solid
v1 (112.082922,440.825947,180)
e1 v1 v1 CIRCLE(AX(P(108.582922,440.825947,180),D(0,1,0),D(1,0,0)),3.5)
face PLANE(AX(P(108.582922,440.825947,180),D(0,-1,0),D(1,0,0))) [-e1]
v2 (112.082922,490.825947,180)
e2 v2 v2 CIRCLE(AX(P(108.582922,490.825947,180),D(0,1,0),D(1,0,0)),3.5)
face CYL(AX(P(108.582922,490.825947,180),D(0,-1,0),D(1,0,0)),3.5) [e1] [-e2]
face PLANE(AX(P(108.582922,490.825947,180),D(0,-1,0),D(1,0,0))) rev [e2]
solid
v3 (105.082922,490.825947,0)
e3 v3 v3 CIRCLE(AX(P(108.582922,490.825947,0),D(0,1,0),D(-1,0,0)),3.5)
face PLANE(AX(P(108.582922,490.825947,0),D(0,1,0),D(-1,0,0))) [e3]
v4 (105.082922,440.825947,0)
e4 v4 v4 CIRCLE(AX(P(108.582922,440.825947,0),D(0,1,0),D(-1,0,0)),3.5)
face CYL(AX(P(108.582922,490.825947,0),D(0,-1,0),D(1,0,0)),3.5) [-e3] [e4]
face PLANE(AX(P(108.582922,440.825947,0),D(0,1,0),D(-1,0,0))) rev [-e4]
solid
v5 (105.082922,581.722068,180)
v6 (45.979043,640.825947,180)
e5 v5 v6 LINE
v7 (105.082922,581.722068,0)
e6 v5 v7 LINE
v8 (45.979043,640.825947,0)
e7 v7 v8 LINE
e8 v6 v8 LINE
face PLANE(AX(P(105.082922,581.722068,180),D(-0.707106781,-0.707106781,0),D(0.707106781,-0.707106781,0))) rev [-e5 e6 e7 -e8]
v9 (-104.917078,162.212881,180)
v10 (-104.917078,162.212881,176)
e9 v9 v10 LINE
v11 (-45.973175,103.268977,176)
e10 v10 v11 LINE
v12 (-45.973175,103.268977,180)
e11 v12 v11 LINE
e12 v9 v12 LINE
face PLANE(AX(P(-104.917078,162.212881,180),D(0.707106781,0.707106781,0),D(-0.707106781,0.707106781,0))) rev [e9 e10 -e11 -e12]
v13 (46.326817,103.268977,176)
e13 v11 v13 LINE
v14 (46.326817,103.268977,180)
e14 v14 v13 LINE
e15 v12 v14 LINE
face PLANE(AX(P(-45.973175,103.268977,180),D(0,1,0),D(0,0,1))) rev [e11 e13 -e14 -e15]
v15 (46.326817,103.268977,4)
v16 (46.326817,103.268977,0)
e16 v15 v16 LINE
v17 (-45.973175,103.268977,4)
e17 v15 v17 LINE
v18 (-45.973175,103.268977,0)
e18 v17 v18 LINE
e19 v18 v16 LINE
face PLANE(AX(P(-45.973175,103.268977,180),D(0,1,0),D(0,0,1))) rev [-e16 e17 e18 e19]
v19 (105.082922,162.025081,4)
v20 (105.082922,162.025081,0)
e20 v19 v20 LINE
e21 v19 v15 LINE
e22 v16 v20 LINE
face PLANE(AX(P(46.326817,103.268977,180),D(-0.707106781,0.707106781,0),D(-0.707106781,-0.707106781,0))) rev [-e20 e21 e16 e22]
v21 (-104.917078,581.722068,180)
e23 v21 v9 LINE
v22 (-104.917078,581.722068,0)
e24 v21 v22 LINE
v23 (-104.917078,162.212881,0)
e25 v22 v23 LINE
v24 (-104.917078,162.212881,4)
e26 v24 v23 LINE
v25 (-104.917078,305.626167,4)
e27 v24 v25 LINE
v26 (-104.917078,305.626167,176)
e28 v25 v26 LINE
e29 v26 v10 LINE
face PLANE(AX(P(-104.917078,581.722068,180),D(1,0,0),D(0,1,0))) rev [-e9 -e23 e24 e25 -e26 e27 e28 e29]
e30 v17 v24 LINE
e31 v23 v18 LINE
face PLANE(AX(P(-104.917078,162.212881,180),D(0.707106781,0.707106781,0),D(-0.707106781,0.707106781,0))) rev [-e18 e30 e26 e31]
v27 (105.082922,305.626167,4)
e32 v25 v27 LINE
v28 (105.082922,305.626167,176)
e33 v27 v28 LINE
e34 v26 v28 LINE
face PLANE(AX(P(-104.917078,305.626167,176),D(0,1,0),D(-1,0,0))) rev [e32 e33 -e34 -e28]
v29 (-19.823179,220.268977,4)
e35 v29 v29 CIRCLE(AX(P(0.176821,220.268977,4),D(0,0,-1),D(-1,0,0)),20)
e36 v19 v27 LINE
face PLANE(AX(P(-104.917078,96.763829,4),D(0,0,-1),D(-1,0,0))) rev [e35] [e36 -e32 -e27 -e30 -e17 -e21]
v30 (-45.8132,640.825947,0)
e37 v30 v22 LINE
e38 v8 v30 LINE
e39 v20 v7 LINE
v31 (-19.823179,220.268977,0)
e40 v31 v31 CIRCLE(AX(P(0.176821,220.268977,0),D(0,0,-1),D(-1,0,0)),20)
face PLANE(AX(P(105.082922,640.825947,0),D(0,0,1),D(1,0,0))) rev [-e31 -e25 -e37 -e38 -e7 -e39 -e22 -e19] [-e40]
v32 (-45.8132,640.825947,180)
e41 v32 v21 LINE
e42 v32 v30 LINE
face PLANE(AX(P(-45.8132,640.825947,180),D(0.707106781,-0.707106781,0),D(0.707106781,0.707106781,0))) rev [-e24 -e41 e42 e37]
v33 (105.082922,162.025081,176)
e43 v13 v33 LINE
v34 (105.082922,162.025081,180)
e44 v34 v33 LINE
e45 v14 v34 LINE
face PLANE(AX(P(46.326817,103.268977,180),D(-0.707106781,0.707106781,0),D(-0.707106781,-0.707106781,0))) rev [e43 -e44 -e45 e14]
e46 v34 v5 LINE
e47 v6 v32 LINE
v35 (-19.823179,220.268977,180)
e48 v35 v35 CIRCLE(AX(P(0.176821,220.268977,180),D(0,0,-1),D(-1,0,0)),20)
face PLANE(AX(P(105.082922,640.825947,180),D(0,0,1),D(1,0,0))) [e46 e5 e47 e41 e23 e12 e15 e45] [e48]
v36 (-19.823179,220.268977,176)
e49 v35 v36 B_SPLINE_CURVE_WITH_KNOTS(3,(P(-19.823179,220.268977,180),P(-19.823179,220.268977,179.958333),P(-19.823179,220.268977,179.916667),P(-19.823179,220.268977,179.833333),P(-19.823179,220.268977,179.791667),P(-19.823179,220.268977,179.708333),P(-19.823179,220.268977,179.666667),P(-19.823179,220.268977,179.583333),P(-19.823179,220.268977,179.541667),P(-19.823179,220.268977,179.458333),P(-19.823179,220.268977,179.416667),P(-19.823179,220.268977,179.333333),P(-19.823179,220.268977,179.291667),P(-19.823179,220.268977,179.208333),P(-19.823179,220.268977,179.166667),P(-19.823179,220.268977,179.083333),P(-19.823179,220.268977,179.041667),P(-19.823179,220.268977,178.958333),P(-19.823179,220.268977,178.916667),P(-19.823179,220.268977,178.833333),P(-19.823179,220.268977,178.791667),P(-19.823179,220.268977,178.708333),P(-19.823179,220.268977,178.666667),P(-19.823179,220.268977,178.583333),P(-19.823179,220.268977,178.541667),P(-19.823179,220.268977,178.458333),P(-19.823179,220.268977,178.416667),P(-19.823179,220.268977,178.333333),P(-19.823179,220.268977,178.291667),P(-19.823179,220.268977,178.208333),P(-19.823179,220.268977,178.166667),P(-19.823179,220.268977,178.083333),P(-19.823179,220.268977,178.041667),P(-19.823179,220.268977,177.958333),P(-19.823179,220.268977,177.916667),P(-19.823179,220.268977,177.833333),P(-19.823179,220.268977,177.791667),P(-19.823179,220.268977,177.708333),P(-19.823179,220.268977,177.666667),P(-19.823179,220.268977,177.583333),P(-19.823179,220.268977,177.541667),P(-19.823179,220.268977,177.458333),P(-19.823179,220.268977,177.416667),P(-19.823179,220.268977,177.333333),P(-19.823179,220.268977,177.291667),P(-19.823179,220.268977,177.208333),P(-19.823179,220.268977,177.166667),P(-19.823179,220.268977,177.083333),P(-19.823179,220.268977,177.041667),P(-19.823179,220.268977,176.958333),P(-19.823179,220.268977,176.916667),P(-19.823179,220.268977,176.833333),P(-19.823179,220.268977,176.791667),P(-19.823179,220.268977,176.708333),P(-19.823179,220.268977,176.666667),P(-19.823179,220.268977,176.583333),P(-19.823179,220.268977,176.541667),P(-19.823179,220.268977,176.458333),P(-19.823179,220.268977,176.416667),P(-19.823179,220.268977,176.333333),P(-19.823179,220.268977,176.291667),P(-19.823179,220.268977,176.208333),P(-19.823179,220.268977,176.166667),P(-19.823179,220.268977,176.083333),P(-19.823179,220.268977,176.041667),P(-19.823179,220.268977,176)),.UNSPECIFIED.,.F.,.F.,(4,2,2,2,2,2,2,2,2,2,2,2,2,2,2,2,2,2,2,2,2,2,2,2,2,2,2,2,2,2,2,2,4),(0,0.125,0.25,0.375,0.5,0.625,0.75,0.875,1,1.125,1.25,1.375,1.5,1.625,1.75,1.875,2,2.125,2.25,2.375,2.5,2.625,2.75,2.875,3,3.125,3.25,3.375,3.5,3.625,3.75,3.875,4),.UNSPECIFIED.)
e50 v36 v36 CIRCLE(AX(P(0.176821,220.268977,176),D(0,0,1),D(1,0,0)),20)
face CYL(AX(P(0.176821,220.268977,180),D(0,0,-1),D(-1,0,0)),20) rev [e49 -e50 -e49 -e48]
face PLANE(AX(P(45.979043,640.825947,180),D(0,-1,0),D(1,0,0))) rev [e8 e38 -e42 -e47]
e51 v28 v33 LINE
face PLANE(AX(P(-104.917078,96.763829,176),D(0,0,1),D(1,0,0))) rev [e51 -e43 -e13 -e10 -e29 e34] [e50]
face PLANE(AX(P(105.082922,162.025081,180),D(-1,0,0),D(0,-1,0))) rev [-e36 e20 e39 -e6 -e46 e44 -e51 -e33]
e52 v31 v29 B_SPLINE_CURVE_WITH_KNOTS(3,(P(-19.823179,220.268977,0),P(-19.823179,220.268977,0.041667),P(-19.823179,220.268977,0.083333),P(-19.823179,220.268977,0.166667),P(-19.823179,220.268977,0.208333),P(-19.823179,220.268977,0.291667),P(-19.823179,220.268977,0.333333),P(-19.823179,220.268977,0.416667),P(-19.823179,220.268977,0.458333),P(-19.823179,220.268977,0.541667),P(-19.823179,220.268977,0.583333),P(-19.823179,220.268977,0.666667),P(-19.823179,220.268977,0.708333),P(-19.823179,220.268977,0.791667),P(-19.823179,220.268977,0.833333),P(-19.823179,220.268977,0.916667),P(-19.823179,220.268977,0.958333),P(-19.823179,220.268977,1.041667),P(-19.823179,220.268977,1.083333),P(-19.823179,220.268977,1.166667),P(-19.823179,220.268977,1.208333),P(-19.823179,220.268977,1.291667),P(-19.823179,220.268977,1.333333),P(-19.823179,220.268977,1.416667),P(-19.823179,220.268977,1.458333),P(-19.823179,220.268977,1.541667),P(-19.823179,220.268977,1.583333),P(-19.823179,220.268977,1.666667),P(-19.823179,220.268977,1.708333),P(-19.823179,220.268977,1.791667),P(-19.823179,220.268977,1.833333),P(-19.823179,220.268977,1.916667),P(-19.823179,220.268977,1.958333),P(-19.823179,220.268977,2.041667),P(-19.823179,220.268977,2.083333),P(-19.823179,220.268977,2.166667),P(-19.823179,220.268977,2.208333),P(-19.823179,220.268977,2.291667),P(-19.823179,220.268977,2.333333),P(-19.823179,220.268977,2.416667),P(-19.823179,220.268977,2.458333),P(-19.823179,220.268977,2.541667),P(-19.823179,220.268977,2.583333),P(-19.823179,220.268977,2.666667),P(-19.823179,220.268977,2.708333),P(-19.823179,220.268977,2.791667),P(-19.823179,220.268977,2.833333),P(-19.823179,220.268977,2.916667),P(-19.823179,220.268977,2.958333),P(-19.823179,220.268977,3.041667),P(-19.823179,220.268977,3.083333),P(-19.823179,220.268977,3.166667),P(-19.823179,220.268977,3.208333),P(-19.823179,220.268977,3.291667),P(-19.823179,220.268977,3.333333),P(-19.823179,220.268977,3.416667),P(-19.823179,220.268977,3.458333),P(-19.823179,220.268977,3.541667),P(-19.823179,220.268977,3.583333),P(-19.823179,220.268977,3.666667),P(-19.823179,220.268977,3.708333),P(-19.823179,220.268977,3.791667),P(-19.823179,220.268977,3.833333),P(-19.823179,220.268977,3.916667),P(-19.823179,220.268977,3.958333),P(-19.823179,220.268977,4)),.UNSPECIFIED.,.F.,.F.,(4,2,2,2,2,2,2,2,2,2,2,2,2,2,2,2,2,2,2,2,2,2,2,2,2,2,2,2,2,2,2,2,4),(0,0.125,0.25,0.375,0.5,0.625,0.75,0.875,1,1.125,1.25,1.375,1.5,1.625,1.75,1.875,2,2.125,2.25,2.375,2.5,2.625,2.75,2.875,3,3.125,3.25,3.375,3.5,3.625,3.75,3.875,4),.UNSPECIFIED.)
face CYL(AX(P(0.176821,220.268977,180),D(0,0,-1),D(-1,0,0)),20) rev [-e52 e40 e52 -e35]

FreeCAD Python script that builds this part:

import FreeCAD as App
import Part
import Sketcher
Q = App.Units.Quantity

doc = App.newDocument("Part")
body = doc.addObject("PartDesign::Body", "Body")

sketch1 = body.newObject("Sketcher::SketchObject", "Sketch")
sketch1.AttachmentSupport = (doc.getObject("XY_Plane"), [""])
sketch1.MapMode = "FlatFace"
sketch1.addGeometry([
    Part.LineSegment(App.Vector(105, 582, 0), App.Vector(46, 641, 0)),
    Part.LineSegment(App.Vector(46, 641, 0), App.Vector(-46, 641, 0)),
    Part.LineSegment(App.Vector(-46, 641, 0), App.Vector(-105, 582, 0)),
    Part.LineSegment(App.Vector(-105, 582, 0), App.Vector(-105, 162, 0)),
    Part.LineSegment(App.Vector(-105, 162, 0), App.Vector(-46, 103, 0)),
    Part.LineSegment(App.Vector(-46, 103, 0), App.Vector(46, 103, 0)),
    Part.LineSegment(App.Vector(46, 103, 0), App.Vector(105, 162, 0)),
    Part.LineSegment(App.Vector(105, 162, 0), App.Vector(105, 582, 0)),
], False)
sketch1.addConstraint([
    Sketcher.Constraint("Coincident", 0, 2, 1, 1),
    Sketcher.Constraint("Coincident", 1, 2, 2, 1),
    Sketcher.Constraint("Coincident", 2, 2, 3, 1),
    Sketcher.Constraint("Coincident", 3, 2, 4, 1),
    Sketcher.Constraint("Coincident", 4, 2, 5, 1),
    Sketcher.Constraint("Coincident", 5, 2, 6, 1),
    Sketcher.Constraint("Coincident", 6, 2, 7, 1),
    Sketcher.Constraint("Coincident", 7, 2, 0, 1),
    Sketcher.Constraint("Horizontal", 1),
    Sketcher.Constraint("Vertical", 3),
    Sketcher.Constraint("Horizontal", 5),
    Sketcher.Constraint("Vertical", 7),
    Sketcher.Constraint("Perpendicular", 0, 2),
    Sketcher.Constraint("Perpendicular", 2, 4),
    Sketcher.Constraint("Perpendicular", 4, 6),
    Sketcher.Constraint("Horizontal", 2, 2, 7, 2),
    Sketcher.Constraint("Equal", 0, 2),
    Sketcher.Constraint("DistanceX", 3, 2, 6, 2, Q("210 mm")),
    Sketcher.Constraint("DistanceX", 5, 1, 5, 2, Q("92.299992 mm")),
    Sketcher.Constraint("DistanceX", 1, 2, -1, 1, Q("45.8132 mm")),
    Sketcher.Constraint("DistanceY", 6, 2, 3, 2, Q("0.1878 mm")),
    Sketcher.Constraint("DistanceX", 1, 2, 1, 1, Q("91.792242 mm")),
    Sketcher.Constraint("DistanceY", 3, 2, 3, 1, Q("419.509188 mm")),
    Sketcher.Constraint("DistanceY", -1, 1, 2, 2, Q("581.722068 mm")),
])
pad1 = body.newObject("PartDesign::Pad", "Pad")
pad1.Profile = sketch1
pad1.Length = 180

sketch2 = body.newObject("Sketcher::SketchObject", "Sketch001")
sketch2.AttachmentSupport = (doc.getObject("YZ_Plane"), [""])
sketch2.MapMode = "FlatFace"
sketch2.AttachmentOffset = App.Placement(App.Vector(0, 0, 105.082922), App.Rotation())
sketch2.addGeometry([
    Part.LineSegment(App.Vector(306, 176, 0), App.Vector(97, 176, 0)),
    Part.LineSegment(App.Vector(97, 176, 0), App.Vector(97, 4, 0)),
    Part.LineSegment(App.Vector(97, 4, 0), App.Vector(306, 4, 0)),
    Part.LineSegment(App.Vector(306, 4, 0), App.Vector(306, 176, 0)),
], False)
sketch2.addConstraint([
    Sketcher.Constraint("Coincident", 0, 2, 1, 1),
    Sketcher.Constraint("Coincident", 1, 2, 2, 1),
    Sketcher.Constraint("Coincident", 2, 2, 3, 1),
    Sketcher.Constraint("Coincident", 3, 2, 0, 1),
    Sketcher.Constraint("Horizontal", 0),
    Sketcher.Constraint("Vertical", 1),
    Sketcher.Constraint("Horizontal", 2),
    Sketcher.Constraint("Vertical", 3),
    Sketcher.Constraint("DistanceY", 1, 2, 1, 1, Q("172 mm")),
    Sketcher.Constraint("DistanceY", -1, 1, 0, 2, Q("176 mm")),
    Sketcher.Constraint("DistanceX", 0, 2, 0, 1, Q("208.862338 mm")),
    Sketcher.Constraint("DistanceX", -1, 1, 0, 2, Q("96.763829 mm")),
])
pocket1 = body.newObject("PartDesign::Pocket", "Pocket")
pocket1.Profile = sketch2
pocket1.Type = "ThroughAll"

sketch3 = body.newObject("Sketcher::SketchObject", "Sketch002")
sketch3.AttachmentSupport = (doc.getObject("XY_Plane"), [""])
sketch3.MapMode = "FlatFace"
sketch3.addGeometry(Part.Circle(App.Vector(0, 220, 0), App.Vector(0, 0, 1), 20), False)
sketch3.addConstraint([
    Sketcher.Constraint("Diameter", 0, Q("40 mm")),
    Sketcher.Constraint("DistanceX", -1, 1, 0, 3, Q("0.176821 mm")),
    Sketcher.Constraint("DistanceY", -1, 1, 0, 3, Q("220.268977 mm")),
])
pocket2 = body.newObject("PartDesign::Pocket", "Pocket001")
pocket2.Profile = sketch3
pocket2.Type = "ThroughAll"
pocket2.Reversed = True
body2 = doc.addObject("PartDesign::Body", "Body001")

sketch4 = body2.newObject("Sketcher::SketchObject", "Sketch003")
sketch4.AttachmentSupport = (doc.getObject("XZ_Plane001"), [""])
sketch4.MapMode = "FlatFace"
sketch4.AttachmentOffset = App.Placement(App.Vector(0, 0, -440.825947), App.Rotation())
sketch4.addGeometry(Part.Circle(App.Vector(108.6, 0, 0), App.Vector(0, 0, 1), 3.5), False)
sketch4.addConstraint([
    Sketcher.Constraint("PointOnObject", 0, 3, -1),
    Sketcher.Constraint("Diameter", 0, Q("7 mm")),
    Sketcher.Constraint("DistanceX", -1, 1, 0, 3, Q("108.582922 mm")),
])
pad2 = body2.newObject("PartDesign::Pad", "Pad001")
pad2.Profile = sketch4
pad2.Length = 50
pad2.Reversed = True
body3 = doc.addObject("PartDesign::Body", "Body002")

sketch5 = body3.newObject("Sketcher::SketchObject", "Sketch004")
sketch5.AttachmentSupport = (doc.getObject("XZ_Plane002"), [""])
sketch5.MapMode = "FlatFace"
sketch5.AttachmentOffset = App.Placement(App.Vector(0, 0, -440.825947), App.Rotation())
sketch5.addGeometry(Part.Circle(App.Vector(108.6, 180, 0), App.Vector(0, 0, 1), 3.5), False)
sketch5.addConstraint([
    Sketcher.Constraint("Diameter", 0, Q("7 mm")),
    Sketcher.Constraint("DistanceY", -1, 1, 0, 3, Q("180 mm")),
    Sketcher.Constraint("DistanceX", -1, 1, 0, 3, Q("108.582922 mm")),
])
pad3 = body3.newObject("PartDesign::Pad", "Pad002")
pad3.Profile = sketch5
pad3.Length = 50
pad3.Reversed = True

doc.recompute()
